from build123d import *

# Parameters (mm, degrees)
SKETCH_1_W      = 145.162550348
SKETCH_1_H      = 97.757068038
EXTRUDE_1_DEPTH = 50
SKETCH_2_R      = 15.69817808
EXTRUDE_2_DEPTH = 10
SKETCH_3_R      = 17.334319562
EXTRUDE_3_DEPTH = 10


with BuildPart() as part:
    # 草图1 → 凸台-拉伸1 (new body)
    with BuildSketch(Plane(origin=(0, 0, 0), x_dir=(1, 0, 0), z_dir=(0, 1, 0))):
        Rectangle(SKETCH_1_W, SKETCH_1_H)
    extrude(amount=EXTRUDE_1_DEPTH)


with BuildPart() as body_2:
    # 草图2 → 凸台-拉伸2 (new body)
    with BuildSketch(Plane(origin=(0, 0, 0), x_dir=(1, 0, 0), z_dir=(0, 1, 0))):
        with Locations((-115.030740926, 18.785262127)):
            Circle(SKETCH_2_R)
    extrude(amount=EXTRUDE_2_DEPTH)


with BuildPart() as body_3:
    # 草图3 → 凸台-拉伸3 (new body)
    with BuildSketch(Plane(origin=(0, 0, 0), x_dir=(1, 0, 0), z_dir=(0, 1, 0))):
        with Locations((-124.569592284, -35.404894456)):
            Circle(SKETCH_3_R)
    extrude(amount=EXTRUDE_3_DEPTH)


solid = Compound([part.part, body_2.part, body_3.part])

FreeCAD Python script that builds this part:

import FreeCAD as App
import Part
import Sketcher


def add_polygon(sketch, points):
    """Adds a closed chain of lines whose ends are joined by coincident constraints."""
    first, n = sketch.GeometryCount, len(points)
    for a, b in zip(points, points[1:] + points[:1]):
        sketch.addGeometry(Part.LineSegment(App.Vector(*a, 0), App.Vector(*b, 0)), False)
    for i in range(n):
        sketch.addConstraint(Sketcher.Constraint("Coincident", first + i, 2, first + (i + 1) % n, 1))

doc = App.newDocument("Part")
body = doc.addObject("PartDesign::Body", "Body")

sketch1 = doc.addObject("Sketcher::SketchObject", "Sketch")
body.addObject(sketch1)
sketch1.AttachmentSupport = (doc.XZ_Plane, [""])
sketch1.MapMode = "FlatFace"
add_polygon(sketch1, [(-72.581275, -48.878534), (-72.581275, 48.878534), (72.581275, 48.878534), (72.581275, -48.878534)])
sketch1.addConstraint([
    Sketcher.Constraint("Vertical", 0),
    Sketcher.Constraint("Horizontal", 1),
    Sketcher.Constraint("Vertical", 2),
    Sketcher.Constraint("Horizontal", 3),
    Sketcher.Constraint("Symmetric", 0, 2, 2, 2, -1, 1),
    Sketcher.Constraint("DistanceX", 1, 1, 1, 2, 145.16255),
    Sketcher.Constraint("DistanceY", 0, 1, 0, 2, 97.757068),
])
pad1 = doc.addObject("PartDesign::Pad", "Pad")
body.addObject(pad1)
pad1.Profile = sketch1
pad1.Length = 50
pad1.Reversed = True
body2 = doc.addObject("PartDesign::Body", "Body001")

sketch2 = doc.addObject("Sketcher::SketchObject", "Sketch001")
body2.addObject(sketch2)
sketch2.AttachmentSupport = (doc.getObject("XZ_Plane001"), [""])
sketch2.MapMode = "FlatFace"
sketch2.addGeometry(Part.Circle(App.Vector(-115.030741, -18.785262, 0), App.Vector(0, 0, 1), 15.698178), False)
sketch2.addConstraint([
    Sketcher.Constraint("Diameter", 0, 31.396356),
    Sketcher.Constraint("DistanceX", 0, 3, -1, 1, 115.030741),
    Sketcher.Constraint("DistanceY", 0, 3, -1, 1, 18.785262),
])
pad2 = doc.addObject("PartDesign::Pad", "Pad001")
body2.addObject(pad2)
pad2.Profile = sketch2
pad2.Length = 10
pad2.Reversed = True
body3 = doc.addObject("PartDesign::Body", "Body002")

sketch3 = doc.addObject("Sketcher::SketchObject", "Sketch002")
body3.addObject(sketch3)
sketch3.AttachmentSupport = (doc.getObject("XZ_Plane002"), [""])
sketch3.MapMode = "FlatFace"
sketch3.addGeometry(Part.Circle(App.Vector(-124.569592, 35.404894, 0), App.Vector(0, 0, 1), 17.33432), False)
sketch3.addConstraint([
    Sketcher.Constraint("Diameter", 0, 34.668639),
    Sketcher.Constraint("DistanceX", 0, 3, -1, 1, 124.569592),
    Sketcher.Constraint("DistanceY", -1, 1, 0, 3, 35.404894),
])
pad3 = doc.addObject("PartDesign::Pad", "Pad002")
body3.addObject(pad3)
pad3.Profile = sketch3
pad3.Length = 10
pad3.Reversed = True

doc.recompute()
